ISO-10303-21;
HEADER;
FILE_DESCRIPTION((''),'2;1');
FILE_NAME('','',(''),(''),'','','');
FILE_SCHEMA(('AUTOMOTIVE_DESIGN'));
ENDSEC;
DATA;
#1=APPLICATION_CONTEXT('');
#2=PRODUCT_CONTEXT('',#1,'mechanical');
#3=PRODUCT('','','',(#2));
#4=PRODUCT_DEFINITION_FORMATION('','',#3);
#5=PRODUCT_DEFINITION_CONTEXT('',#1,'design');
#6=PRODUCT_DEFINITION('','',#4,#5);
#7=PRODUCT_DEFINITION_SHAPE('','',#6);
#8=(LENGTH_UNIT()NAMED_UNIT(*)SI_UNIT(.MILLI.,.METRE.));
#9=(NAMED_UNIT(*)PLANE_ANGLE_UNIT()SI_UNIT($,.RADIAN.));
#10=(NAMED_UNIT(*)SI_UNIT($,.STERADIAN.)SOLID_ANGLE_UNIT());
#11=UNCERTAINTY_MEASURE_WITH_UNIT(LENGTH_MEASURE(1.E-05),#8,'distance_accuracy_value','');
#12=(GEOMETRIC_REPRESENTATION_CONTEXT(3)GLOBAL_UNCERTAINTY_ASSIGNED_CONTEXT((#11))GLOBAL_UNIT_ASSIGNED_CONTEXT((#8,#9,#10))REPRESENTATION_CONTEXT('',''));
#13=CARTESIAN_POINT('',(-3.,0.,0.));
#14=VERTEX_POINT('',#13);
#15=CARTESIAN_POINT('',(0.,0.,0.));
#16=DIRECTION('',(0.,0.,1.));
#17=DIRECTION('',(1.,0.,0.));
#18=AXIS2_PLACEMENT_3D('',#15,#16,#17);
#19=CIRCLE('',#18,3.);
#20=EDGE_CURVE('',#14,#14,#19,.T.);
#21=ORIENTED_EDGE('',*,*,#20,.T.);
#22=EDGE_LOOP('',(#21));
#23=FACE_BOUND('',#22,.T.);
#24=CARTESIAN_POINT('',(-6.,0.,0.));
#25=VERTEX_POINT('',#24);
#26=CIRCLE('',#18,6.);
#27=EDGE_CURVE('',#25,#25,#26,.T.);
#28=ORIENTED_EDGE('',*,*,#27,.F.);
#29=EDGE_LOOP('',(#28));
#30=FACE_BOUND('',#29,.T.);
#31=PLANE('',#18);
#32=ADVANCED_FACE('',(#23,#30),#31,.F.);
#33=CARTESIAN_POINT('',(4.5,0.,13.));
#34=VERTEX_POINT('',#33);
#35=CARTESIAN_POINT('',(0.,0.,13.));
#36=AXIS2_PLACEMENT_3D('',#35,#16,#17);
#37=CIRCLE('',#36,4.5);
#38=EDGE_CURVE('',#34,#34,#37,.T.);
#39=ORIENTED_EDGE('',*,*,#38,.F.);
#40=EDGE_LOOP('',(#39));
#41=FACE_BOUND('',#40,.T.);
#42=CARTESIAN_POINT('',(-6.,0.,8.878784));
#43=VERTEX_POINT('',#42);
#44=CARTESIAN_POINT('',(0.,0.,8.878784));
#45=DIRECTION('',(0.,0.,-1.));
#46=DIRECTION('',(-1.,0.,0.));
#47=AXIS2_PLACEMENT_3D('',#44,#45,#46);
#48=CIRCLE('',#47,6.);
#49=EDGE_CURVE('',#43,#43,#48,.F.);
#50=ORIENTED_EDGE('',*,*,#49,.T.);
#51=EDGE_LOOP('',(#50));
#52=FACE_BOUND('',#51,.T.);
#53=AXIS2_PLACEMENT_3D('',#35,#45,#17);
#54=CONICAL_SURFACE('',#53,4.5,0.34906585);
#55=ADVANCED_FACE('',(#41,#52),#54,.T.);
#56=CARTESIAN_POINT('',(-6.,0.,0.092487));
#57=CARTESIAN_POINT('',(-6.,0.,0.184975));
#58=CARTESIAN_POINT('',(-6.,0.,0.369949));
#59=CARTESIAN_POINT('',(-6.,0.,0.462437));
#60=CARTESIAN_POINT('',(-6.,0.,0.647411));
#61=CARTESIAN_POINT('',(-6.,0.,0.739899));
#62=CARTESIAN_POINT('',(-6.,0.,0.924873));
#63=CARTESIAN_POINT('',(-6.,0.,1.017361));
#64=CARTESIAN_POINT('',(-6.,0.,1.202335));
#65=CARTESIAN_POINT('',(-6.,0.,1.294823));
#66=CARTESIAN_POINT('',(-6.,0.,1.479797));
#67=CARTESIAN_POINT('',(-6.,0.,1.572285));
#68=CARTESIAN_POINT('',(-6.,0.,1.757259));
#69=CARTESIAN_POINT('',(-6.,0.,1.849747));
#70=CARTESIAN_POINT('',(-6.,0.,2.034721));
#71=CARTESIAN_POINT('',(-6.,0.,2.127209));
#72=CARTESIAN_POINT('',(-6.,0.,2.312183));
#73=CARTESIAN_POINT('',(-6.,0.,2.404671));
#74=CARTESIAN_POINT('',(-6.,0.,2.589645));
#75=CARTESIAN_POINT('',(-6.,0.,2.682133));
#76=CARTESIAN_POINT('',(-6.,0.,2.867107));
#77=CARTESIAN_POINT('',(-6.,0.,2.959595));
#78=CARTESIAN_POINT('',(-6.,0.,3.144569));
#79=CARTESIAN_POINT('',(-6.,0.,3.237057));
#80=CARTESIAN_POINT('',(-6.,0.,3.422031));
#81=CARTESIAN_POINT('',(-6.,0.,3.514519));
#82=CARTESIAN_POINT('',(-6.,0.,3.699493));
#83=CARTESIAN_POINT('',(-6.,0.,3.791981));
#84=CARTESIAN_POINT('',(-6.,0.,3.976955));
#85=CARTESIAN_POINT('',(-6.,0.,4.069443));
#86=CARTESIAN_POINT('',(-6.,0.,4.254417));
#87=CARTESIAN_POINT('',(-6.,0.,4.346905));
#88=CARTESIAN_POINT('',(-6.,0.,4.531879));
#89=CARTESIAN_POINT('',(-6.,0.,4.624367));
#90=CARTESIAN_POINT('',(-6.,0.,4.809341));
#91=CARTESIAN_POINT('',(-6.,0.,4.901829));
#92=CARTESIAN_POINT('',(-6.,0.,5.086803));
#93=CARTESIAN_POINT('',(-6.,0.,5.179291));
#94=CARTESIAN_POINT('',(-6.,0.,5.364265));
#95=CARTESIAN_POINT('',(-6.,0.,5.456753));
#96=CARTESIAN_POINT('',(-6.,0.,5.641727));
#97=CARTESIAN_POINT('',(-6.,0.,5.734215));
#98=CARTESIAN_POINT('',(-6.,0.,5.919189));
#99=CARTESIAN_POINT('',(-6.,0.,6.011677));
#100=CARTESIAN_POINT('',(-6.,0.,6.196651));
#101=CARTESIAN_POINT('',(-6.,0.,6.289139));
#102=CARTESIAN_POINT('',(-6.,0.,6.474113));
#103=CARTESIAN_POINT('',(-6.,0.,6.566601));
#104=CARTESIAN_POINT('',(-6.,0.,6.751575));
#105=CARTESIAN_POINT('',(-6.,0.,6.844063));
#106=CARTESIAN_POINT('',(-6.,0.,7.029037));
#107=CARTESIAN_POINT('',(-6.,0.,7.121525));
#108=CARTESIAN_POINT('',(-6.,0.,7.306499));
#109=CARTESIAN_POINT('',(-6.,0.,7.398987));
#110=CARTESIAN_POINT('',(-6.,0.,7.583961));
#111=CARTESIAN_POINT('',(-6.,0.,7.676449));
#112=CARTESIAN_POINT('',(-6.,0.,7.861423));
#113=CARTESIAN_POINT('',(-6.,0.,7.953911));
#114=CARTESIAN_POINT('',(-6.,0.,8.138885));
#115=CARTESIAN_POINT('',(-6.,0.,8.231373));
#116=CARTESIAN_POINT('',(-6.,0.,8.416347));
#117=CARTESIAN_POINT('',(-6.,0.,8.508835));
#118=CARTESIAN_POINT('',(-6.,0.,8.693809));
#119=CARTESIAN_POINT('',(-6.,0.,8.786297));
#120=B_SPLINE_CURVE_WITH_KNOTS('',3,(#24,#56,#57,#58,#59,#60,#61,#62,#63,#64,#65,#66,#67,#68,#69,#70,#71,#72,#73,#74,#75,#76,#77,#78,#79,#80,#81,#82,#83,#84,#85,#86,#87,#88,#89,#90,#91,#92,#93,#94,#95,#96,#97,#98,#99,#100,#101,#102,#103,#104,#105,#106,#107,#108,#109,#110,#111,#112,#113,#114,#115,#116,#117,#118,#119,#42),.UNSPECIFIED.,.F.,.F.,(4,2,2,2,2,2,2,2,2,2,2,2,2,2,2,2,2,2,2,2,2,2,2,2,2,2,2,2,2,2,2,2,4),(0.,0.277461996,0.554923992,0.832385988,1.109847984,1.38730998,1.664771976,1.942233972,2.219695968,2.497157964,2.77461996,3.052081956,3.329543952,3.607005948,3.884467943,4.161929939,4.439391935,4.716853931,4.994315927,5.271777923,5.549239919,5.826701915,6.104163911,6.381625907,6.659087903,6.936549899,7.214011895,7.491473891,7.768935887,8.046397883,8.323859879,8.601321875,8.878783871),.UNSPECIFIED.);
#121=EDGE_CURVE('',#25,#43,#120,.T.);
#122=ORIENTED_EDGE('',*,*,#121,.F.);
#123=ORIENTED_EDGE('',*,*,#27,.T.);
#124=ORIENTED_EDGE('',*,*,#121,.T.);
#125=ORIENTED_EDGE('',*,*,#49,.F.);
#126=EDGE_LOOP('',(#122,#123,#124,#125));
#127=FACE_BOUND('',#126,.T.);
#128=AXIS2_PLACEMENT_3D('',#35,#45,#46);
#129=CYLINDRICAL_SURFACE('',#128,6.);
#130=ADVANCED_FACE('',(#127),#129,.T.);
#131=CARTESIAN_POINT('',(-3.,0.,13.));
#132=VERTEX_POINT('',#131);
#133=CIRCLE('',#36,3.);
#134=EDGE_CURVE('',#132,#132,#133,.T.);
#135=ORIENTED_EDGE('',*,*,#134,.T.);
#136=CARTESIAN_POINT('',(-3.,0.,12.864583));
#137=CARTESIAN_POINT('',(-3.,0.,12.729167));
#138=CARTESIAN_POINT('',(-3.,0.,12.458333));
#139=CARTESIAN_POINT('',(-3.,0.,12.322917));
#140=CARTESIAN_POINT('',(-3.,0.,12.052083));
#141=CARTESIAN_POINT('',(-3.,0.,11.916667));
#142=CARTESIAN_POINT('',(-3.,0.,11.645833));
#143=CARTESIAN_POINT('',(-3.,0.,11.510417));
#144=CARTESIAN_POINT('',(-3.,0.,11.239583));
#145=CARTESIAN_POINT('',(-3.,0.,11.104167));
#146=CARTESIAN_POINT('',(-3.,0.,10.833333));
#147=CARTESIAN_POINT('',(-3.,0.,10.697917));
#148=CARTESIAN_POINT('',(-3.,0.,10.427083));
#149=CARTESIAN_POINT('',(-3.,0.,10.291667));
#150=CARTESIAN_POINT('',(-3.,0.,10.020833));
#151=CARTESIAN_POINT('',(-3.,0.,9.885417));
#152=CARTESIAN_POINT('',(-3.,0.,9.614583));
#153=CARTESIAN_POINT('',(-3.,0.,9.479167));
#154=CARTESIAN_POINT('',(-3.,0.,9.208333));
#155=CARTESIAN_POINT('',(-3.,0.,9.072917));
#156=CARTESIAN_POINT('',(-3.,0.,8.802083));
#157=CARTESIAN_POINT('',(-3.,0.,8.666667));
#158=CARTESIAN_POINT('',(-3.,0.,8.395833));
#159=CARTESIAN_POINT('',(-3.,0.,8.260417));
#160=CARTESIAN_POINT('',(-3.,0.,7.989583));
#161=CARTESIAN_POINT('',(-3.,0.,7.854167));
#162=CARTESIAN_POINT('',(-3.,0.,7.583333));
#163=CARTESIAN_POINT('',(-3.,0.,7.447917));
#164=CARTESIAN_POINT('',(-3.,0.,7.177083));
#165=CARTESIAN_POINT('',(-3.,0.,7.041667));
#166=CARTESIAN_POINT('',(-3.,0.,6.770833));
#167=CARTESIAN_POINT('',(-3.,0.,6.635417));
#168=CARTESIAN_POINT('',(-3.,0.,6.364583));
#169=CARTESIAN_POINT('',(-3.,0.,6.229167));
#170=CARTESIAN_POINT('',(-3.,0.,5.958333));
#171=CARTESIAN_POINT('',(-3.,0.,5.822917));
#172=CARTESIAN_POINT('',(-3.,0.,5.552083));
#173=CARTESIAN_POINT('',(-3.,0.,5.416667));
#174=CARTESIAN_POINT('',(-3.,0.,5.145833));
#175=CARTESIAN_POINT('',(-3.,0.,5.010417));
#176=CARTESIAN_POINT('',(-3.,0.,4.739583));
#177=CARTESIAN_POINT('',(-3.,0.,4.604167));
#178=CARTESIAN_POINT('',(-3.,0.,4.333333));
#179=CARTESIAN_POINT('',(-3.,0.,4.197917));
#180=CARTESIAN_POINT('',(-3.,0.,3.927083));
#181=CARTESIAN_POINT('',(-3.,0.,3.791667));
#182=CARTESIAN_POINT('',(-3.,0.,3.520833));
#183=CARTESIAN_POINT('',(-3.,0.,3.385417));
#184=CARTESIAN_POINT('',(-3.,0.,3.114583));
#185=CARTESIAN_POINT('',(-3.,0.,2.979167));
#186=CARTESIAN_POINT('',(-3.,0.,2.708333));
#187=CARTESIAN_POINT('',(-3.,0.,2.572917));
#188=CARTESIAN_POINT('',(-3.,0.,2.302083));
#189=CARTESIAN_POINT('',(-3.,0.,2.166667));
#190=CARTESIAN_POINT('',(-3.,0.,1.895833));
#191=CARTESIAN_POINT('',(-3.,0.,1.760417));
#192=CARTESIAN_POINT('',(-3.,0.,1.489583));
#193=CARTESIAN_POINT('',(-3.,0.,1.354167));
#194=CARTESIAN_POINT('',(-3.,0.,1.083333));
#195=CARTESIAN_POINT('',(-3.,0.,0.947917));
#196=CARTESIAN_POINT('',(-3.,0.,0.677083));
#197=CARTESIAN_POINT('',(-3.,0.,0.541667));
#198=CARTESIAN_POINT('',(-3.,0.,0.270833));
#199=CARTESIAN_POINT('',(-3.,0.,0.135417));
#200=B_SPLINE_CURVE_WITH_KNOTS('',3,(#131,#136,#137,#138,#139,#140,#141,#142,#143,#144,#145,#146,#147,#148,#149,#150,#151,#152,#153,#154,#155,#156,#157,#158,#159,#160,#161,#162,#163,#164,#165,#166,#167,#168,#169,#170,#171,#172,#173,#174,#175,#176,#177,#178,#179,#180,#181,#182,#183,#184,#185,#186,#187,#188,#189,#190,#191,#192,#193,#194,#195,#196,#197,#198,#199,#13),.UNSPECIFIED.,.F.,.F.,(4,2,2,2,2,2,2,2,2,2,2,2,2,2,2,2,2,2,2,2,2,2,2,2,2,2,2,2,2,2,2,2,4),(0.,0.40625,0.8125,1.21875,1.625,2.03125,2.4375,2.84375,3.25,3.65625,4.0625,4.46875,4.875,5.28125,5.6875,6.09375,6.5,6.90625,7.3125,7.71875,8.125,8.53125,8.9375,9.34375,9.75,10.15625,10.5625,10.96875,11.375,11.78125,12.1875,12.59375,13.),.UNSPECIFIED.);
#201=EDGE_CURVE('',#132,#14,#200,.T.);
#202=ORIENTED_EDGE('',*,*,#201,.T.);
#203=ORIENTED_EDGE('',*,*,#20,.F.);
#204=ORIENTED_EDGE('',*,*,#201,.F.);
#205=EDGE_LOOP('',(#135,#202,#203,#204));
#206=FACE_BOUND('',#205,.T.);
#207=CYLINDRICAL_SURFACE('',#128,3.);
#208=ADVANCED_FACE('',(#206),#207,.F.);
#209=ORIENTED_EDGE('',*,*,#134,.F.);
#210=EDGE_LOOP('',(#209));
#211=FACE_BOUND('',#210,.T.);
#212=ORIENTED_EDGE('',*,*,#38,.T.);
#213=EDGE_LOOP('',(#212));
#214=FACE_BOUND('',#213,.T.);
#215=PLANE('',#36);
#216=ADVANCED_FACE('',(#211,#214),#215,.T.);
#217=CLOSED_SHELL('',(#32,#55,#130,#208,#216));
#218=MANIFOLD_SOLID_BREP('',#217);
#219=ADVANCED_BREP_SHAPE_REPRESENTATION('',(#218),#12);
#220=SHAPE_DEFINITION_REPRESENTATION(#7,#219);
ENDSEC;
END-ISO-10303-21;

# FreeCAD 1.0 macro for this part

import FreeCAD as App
import Part
import Sketcher

V = App.Vector


def faces_at(feature, points):
    """Names of the faces that lie closest to the given points."""
    faces = feature.Shape.Faces
    near = lambda p: min(range(len(faces)), key=lambda i: faces[i].distToShape(Part.Vertex(*p))[0])
    return sorted({f"Face{near(p) + 1}" for p in points})


def add_polygon(sketch, points):
    """Adds a closed chain of lines whose ends are joined by coincident constraints."""
    first, n = sketch.GeometryCount, len(points)
    for a, b in zip(points, points[1:] + points[:1]):
        sketch.addGeometry(Part.LineSegment(App.Vector(*a, 0), App.Vector(*b, 0)), False)
    for i in range(n):
        sketch.addConstraint(Sketcher.Constraint("Coincident", first + i, 2, first + (i + 1) % n, 1))

doc = App.newDocument("Part")
params = doc.addObject("Spreadsheet::Sheet", "Params")
for row, (alias, value) in enumerate([
    ("sketch1_diameter", "12 mm"),
    ("sketch1_diameter2", "6 mm"),
    ("pad1_length", "13 mm"),
    ("sketch2_diameter", "9 mm"),
    ("pad2_length", "5 mm"),
    ("draft_angle", "20 deg"),
], start=1):
    params.set(f"A{row}", alias)
    params.set(f"B{row}", "=" + value)
    params.setAlias(f"B{row}", alias)

body = doc.addObject("PartDesign::Body", "Body")

# Sketch on XY plane
sketch1 = body.newObject("Sketcher::SketchObject", "Sketch")
sketch1.AttachmentSupport = (doc.getObject("XY_Plane"), [""])
sketch1.MapMode = "FlatFace"
sketch1.addGeometry([
    Part.Circle(V(0, 0, 0), V(0, 0, 1), 6),
    Part.Circle(V(0, 0, 0), V(0, 0, 1), 3),
], False)
sketch1.addConstraint([
    Sketcher.Constraint("Coincident", 0, 3, -1, 1),
    Sketcher.Constraint("Coincident", 1, 3, -1, 1),
    Sketcher.Constraint("Diameter", 0, 12.0),
    Sketcher.Constraint("Diameter", 1, 6.0),
])
sketch1.setExpression("Constraints[2]", "Params.sketch1_diameter")
sketch1.setExpression("Constraints[3]", "Params.sketch1_diameter2")
pad1 = body.newObject("PartDesign::Pad", "Pad")
pad1.Profile = sketch1
pad1.setExpression("Length", "Params.pad1_length")
body2 = doc.addObject("PartDesign::Body", "Body001")

# Sketch on XY plane
sketch2 = body2.newObject("Sketcher::SketchObject", "Sketch001")
sketch2.AttachmentSupport = (doc.getObject("XY_Plane001"), [""])
sketch2.MapMode = "FlatFace"
sketch2.AttachmentOffset = App.Placement(V(0, 0, 13), App.Rotation())
add_polygon(sketch2, [(-11, 11), (-11, -11), (11, -11), (11, 11)])  # lines 0-3
sketch2.addGeometry(Part.Circle(V(0, 0, 0), V(0, 0, 1), 4.5), False)  # 4
sketch2.addConstraint([
    Sketcher.Constraint("Vertical", 0),
    Sketcher.Constraint("Horizontal", 1),
    Sketcher.Constraint("Vertical", 2),
    Sketcher.Constraint("Horizontal", 3),
    Sketcher.Constraint("Coincident", 4, 3, -1, 1),
    Sketcher.Constraint("Symmetric", 0, 2, 2, 2, -1, 1),
    Sketcher.Constraint("Equal", 3, 0),
    Sketcher.Constraint("Diameter", 4, 9.0),
    Sketcher.Constraint("DistanceX", 1, 1, 1, 2, 21.916),
])
sketch2.setExpression("Constraints[11]", "Params.sketch2_diameter")
pad2 = body2.newObject("PartDesign::Pad", "Pad001")
pad2.Profile = sketch2
pad2.setExpression("Length", "Params.pad2_length")
pad2.Reversed = True
doc.recompute()

datumplane = body2.newObject("PartDesign::Plane", "DatumPlane")
datumplane.AttachmentSupport = (doc.getObject("XY_Plane001"), [""])
datumplane.MapMode = "FlatFace"
datumplane.AttachmentOffset = App.Placement(V(0, 0, 13), App.Rotation())
draft = body2.newObject("PartDesign::Draft", "Draft")
draft.Base = (pad2, faces_at(pad2, [
    (0, -10.958, 10.5),
    (10.958, 0, 10.5),
    (0, 10.958, 10.5),
    (-10.958, 0, 10.5),
    (-4.5, 0, 10.5),
]))
draft.NeutralPlane = (datumplane, [""])
draft.setExpression("Angle", "Params.draft_angle")
draft.Reversed = True
doc.recompute()

boolean = body.newObject("PartDesign::Boolean", "Boolean")
boolean.Type = "Cut"
boolean.addObjects([body2])

doc.recompute()
